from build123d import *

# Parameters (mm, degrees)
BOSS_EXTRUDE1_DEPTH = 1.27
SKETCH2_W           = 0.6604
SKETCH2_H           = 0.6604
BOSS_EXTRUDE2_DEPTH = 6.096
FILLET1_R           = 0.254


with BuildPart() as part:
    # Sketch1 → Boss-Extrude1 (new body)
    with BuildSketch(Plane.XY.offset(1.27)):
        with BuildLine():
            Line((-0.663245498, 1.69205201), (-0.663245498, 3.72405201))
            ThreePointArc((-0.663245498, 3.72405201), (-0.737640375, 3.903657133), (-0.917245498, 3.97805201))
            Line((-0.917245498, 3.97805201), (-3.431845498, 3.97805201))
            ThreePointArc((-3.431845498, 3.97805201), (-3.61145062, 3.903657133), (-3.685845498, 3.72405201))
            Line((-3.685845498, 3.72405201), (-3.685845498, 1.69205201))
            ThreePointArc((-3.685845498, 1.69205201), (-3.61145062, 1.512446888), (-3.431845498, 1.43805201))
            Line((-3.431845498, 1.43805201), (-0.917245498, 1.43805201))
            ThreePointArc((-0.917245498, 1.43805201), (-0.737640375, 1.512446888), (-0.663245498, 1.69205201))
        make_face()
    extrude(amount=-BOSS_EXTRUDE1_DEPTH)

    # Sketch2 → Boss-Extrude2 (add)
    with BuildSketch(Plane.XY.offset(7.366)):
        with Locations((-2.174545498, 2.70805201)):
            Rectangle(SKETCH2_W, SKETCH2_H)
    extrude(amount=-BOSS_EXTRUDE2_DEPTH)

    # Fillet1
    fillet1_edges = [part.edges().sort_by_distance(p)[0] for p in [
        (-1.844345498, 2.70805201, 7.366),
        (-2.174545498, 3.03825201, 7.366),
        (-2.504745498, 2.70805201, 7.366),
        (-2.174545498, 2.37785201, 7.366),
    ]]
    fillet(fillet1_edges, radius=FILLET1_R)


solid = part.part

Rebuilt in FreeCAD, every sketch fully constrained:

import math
import FreeCAD as App
import Part
import Sketcher

V = App.Vector
Q = App.Units.Quantity


def edges_at(feature, points):
    """Names of the edges that pass closest to the given points."""
    edges = feature.Shape.Edges
    near = lambda p: min(range(len(edges)), key=lambda i: edges[i].distToShape(Part.Vertex(*p))[0])
    return sorted({f"Edge{near(p) + 1}" for p in points})


def add_polygon(sketch, points):
    """Adds a closed chain of lines whose ends are joined by coincident constraints."""
    first, n = sketch.GeometryCount, len(points)
    for a, b in zip(points, points[1:] + points[:1]):
        sketch.addGeometry(Part.LineSegment(App.Vector(*a, 0), App.Vector(*b, 0)), False)
    for i in range(n):
        sketch.addConstraint(Sketcher.Constraint("Coincident", first + i, 2, first + (i + 1) % n, 1))

doc = App.newDocument("Part")
body = doc.addObject("PartDesign::Body", "Body")

# Sketch on XY plane
sketch1 = body.newObject("Sketcher::SketchObject", "Sketch")
sketch1.AttachmentSupport = (doc.getObject("XY_Plane"), [""])
sketch1.MapMode = "FlatFace"
sketch1.AttachmentOffset = App.Placement(V(0, 0, 0.05 * 25.4), App.Rotation())
sketch1.addGeometry([
    Part.LineSegment(V(-0.663245, 1.692052, 0), V(-0.663245, 3.724052, 0)),  # 0
    Part.ArcOfCircle(Part.Circle(V(-0.917245, 3.724052, 0), V(0, 0, 1), 0.254), math.radians(0), math.radians(90)),  # 1
    Part.LineSegment(V(-0.917245, 3.978052, 0), V(-3.431845, 3.978052, 0)),  # 2
    Part.ArcOfCircle(Part.Circle(V(-3.431845, 3.724052, 0), V(0, 0, 1), 0.254), math.radians(90), math.radians(180)),  # 3
    Part.LineSegment(V(-3.685845, 3.724052, 0), V(-3.685845, 1.692052, 0)),  # 4
    Part.ArcOfCircle(Part.Circle(V(-3.431845, 1.692052, 0), V(0, 0, 1), 0.254), math.radians(-180), math.radians(-90)),  # 5
    Part.LineSegment(V(-3.431845, 1.438052, 0), V(-0.917245, 1.438052, 0)),  # 6
    Part.ArcOfCircle(Part.Circle(V(-0.917245, 1.692052, 0), V(0, 0, 1), 0.254), math.radians(-90), math.radians(0)),  # 7
], False)
sketch1.addConstraint([
    Sketcher.Constraint("Tangent", 0, 2, 1, 1),
    Sketcher.Constraint("Tangent", 1, 2, 2, 1),
    Sketcher.Constraint("Tangent", 2, 2, 3, 1),
    Sketcher.Constraint("Tangent", 3, 2, 4, 1),
    Sketcher.Constraint("Tangent", 4, 2, 5, 1),
    Sketcher.Constraint("Tangent", 5, 2, 6, 1),
    Sketcher.Constraint("Tangent", 6, 2, 7, 1),
    Sketcher.Constraint("Tangent", 7, 2, 0, 1),
    Sketcher.Constraint("Vertical", 0),
    Sketcher.Constraint("Horizontal", 2),
    Sketcher.Constraint("Vertical", 4),
    Sketcher.Constraint("Horizontal", 6),
    Sketcher.Constraint("Equal", 1, 3),
    Sketcher.Constraint("Equal", 3, 5),
    Sketcher.Constraint("Equal", 5, 7),
    Sketcher.Constraint("Radius", 1, Q("0.01 in")),
    Sketcher.Constraint("DistanceY", 0, 1, 0, 2, Q("0.08 in")),
    Sketcher.Constraint("DistanceX", 2, 2, 2, 1, Q("0.099 in")),
    Sketcher.Constraint("DistanceX", 1, 3, -1, 1, 0.917245),
    Sketcher.Constraint("DistanceY", -1, 1, 1, 3, 3.724052),
])
pad1 = body.newObject("PartDesign::Pad", "Pad")
pad1.Profile = sketch1
pad1.Length = Q("0.05 in")
pad1.Reversed = True

# Sketch on XY plane
sketch2 = body.newObject("Sketcher::SketchObject", "Sketch001")
sketch2.AttachmentSupport = (doc.getObject("XY_Plane"), [""])
sketch2.MapMode = "FlatFace"
sketch2.AttachmentOffset = App.Placement(V(0, 0, 0.29 * 25.4), App.Rotation())
add_polygon(sketch2, [(-2.504745, 3.038252), (-2.504745, 2.377852), (-1.844345, 2.377852), (-1.844345, 3.038252)])  # lines 0-3
sketch2.addConstraint([
    Sketcher.Constraint("Vertical", 0),
    Sketcher.Constraint("Horizontal", 1),
    Sketcher.Constraint("Vertical", 2),
    Sketcher.Constraint("Horizontal", 3),
    Sketcher.Constraint("Equal", 3, 0),
    Sketcher.Constraint("DistanceX", 1, 1, 1, 2, Q("0.026 in")),
    Sketcher.Constraint("DistanceX", 0, 2, -1, 1, 2.504745),
    Sketcher.Constraint("DistanceY", -1, 1, 0, 2, 2.377852),
])
pad2 = body.newObject("PartDesign::Pad", "Pad001")
pad2.Profile = sketch2
pad2.Length = Q("0.24 in")
pad2.Reversed = True
doc.recompute()

fillet = body.newObject("PartDesign::Fillet", "Fillet")
fillet.Base = (pad2, edges_at(pad2, [
    (-1.844, 2.708, 7.366),
    (-2.175, 3.038, 7.366),
    (-2.505, 2.708, 7.366),
    (-2.175, 2.378, 7.366),
]))
fillet.Radius = Q("0.01 in")

doc.recompute()
